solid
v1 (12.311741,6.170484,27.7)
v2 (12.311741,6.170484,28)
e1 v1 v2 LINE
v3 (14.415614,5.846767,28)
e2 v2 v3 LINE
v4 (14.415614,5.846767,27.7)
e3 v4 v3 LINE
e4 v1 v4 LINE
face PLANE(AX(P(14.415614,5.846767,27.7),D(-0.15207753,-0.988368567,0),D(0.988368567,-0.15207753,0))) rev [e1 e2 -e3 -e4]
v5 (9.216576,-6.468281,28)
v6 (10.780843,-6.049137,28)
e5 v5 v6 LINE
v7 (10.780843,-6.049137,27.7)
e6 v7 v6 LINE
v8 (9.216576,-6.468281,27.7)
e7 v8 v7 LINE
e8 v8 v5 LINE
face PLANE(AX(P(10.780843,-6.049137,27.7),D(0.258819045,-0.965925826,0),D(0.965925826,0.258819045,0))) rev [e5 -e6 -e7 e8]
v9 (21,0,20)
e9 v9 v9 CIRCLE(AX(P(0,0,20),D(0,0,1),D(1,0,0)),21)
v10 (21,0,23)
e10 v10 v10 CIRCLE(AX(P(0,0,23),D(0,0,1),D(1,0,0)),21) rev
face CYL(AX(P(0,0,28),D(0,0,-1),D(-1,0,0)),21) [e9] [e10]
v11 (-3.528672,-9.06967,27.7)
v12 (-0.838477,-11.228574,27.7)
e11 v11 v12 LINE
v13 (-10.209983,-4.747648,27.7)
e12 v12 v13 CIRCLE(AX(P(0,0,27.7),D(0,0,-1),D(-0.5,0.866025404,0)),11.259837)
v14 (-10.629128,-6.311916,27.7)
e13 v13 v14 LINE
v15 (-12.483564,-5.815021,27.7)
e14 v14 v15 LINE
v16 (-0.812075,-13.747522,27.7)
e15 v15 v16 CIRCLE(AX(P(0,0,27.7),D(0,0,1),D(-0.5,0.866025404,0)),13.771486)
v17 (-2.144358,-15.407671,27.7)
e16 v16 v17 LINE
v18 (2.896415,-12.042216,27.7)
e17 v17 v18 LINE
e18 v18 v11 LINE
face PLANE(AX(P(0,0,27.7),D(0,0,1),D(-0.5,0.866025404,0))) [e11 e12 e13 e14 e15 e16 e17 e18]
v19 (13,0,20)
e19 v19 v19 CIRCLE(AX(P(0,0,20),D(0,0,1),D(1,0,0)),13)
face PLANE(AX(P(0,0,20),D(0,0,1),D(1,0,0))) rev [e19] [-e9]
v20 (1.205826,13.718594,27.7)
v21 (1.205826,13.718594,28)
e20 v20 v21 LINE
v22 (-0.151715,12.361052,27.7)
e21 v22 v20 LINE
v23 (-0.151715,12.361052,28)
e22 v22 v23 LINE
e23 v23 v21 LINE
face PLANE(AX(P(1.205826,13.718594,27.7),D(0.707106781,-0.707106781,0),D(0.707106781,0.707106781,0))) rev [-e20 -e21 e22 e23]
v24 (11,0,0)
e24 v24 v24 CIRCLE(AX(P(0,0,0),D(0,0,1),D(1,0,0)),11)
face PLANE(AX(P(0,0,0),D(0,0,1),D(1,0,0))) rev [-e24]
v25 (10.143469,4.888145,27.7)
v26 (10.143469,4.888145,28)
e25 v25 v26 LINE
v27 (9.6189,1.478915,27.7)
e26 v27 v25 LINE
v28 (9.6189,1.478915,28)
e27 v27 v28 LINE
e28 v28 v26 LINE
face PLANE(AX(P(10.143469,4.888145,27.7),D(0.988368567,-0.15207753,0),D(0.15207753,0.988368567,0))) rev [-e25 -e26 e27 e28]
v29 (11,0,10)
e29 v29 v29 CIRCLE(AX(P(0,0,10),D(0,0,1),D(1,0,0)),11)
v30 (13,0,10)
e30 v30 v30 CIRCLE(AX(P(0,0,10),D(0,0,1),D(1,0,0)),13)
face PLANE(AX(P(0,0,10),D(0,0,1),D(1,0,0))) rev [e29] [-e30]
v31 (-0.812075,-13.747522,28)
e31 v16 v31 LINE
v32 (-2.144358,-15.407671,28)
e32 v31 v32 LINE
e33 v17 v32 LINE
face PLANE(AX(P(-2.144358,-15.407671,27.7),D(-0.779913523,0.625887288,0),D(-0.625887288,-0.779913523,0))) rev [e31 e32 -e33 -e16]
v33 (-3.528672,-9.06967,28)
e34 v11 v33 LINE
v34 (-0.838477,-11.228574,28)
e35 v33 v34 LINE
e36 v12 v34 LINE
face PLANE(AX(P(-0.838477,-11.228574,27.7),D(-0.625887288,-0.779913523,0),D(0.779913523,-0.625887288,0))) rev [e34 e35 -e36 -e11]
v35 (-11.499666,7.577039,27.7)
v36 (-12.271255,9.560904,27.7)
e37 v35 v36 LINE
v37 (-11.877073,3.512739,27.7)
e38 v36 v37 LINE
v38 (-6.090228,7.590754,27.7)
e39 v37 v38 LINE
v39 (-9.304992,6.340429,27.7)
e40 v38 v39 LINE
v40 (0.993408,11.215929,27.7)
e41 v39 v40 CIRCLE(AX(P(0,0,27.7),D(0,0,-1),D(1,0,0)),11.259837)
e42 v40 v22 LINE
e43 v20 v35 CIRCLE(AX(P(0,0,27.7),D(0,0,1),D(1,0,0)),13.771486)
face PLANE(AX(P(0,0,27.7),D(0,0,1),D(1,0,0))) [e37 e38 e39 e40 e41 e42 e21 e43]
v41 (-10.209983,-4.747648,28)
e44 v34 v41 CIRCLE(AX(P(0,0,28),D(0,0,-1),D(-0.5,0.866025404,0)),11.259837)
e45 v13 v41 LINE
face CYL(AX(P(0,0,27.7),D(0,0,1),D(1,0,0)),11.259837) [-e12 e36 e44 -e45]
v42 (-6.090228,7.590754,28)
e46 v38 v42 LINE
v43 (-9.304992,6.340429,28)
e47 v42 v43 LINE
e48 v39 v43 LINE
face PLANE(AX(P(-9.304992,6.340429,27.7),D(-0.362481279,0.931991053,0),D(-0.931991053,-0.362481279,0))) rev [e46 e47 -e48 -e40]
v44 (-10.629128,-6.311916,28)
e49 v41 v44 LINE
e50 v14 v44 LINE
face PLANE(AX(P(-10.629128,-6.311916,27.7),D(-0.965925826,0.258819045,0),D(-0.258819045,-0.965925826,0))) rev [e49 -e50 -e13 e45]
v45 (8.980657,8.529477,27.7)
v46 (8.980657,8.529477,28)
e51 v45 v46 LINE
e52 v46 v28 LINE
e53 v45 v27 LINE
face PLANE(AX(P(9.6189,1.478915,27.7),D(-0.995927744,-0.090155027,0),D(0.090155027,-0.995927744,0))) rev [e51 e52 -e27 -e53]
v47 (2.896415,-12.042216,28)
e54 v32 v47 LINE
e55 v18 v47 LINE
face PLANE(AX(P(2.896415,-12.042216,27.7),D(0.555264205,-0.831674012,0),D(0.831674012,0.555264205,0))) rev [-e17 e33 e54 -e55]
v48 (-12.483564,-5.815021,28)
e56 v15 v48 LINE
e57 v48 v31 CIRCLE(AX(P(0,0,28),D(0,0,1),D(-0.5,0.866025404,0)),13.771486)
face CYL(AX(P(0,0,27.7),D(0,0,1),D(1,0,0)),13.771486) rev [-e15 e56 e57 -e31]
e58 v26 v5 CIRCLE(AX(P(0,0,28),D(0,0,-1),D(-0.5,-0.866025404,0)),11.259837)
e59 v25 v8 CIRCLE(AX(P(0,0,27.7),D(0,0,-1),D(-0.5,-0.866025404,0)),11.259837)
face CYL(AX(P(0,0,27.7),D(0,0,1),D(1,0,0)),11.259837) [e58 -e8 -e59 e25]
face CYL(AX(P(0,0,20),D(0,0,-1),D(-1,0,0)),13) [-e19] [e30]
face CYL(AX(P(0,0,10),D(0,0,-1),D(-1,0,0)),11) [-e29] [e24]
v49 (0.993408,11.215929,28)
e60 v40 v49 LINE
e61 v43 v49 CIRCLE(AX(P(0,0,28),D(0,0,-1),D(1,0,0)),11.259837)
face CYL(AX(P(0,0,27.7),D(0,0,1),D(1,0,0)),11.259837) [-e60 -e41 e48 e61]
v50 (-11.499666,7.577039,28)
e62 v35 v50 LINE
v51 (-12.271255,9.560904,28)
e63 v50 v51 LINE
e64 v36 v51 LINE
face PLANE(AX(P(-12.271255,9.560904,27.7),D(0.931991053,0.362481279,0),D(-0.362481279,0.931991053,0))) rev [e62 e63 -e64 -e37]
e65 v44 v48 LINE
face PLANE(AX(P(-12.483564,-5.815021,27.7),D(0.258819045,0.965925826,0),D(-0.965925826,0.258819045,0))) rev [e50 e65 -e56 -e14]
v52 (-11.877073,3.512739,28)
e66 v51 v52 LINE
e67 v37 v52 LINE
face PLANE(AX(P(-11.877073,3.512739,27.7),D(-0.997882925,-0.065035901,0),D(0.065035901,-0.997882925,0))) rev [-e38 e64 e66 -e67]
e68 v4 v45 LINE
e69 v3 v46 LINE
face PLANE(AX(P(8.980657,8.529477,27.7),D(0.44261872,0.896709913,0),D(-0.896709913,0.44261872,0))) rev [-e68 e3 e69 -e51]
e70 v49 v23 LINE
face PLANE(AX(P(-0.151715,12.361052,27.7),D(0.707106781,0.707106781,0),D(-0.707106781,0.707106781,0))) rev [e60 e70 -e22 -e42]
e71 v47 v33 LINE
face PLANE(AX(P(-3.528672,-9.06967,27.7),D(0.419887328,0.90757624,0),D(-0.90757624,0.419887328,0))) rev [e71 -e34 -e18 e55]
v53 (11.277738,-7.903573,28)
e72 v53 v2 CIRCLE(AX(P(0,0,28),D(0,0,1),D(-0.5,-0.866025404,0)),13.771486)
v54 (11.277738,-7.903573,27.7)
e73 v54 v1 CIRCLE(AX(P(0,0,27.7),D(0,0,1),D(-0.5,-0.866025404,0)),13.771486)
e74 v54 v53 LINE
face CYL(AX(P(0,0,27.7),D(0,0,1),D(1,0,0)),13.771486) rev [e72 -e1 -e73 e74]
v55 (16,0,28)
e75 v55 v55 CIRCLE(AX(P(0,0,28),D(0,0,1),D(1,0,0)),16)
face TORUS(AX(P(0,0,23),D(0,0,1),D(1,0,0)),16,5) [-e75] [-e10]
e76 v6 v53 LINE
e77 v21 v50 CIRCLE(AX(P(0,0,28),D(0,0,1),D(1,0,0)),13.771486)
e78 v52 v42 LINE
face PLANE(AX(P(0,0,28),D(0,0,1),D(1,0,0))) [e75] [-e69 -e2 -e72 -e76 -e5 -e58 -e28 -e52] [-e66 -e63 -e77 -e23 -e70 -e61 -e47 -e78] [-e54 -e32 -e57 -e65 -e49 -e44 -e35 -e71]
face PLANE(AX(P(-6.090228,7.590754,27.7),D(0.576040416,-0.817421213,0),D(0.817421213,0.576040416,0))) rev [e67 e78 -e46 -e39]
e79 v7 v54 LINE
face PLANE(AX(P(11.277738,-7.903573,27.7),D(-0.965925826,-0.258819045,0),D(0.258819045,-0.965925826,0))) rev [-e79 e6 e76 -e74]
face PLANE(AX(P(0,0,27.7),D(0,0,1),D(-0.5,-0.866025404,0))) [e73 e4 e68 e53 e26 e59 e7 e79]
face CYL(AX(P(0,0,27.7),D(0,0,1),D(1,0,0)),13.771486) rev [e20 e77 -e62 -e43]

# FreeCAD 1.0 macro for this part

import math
import FreeCAD as App
import Part
import Sketcher

V = App.Vector
Q = App.Units.Quantity


def edges_at(feature, points):
    """Names of the edges that pass closest to the given points."""
    edges = feature.Shape.Edges
    near = lambda p: min(range(len(edges)), key=lambda i: edges[i].distToShape(Part.Vertex(*p))[0])
    return sorted({f"Edge{near(p) + 1}" for p in points})

doc = App.newDocument("Part")
body = doc.addObject("PartDesign::Body", "Body")

sketch1 = body.newObject("Sketcher::SketchObject", "Sketch")
sketch1.AttachmentSupport = (doc.getObject("XY_Plane"), [""])
sketch1.MapMode = "FlatFace"
sketch1.addGeometry(Part.Circle(V(0, 0, 0), V(0, 0, 1), 11), False)
sketch1.addConstraint([
    Sketcher.Constraint("Coincident", 0, 3, -1, 1),
    Sketcher.Constraint("Diameter", 0, 22.0),
])
pad1 = body.newObject("PartDesign::Pad", "Pad")
pad1.Profile = sketch1
pad1.Length = 10

sketch2 = body.newObject("Sketcher::SketchObject", "Sketch001")
sketch2.AttachmentSupport = (doc.getObject("XY_Plane"), [""])
sketch2.MapMode = "FlatFace"
sketch2.AttachmentOffset = App.Placement(V(0, 0, 10), App.Rotation())
sketch2.addGeometry(Part.Circle(V(0, 0, 0), V(0, 0, 1), 13), False)
sketch2.addConstraint([
    Sketcher.Constraint("Coincident", 0, 3, -1, 1),
    Sketcher.Constraint("Diameter", 0, 26.0),
])
pad2 = body.newObject("PartDesign::Pad", "Pad001")
pad2.Profile = sketch2
pad2.Length = 10

sketch3 = body.newObject("Sketcher::SketchObject", "Sketch002")
sketch3.AttachmentSupport = (doc.getObject("XY_Plane"), [""])
sketch3.MapMode = "FlatFace"
sketch3.AttachmentOffset = App.Placement(V(0, 0, 20), App.Rotation())
sketch3.addGeometry(Part.Circle(V(0, 0, 0), V(0, 0, 1), 21), False)
sketch3.addConstraint([
    Sketcher.Constraint("Coincident", 0, 3, -1, 1),
    Sketcher.Constraint("Diameter", 0, 42.0),
])
pad3 = body.newObject("PartDesign::Pad", "Pad002")
pad3.Profile = sketch3
pad3.Length = 8
doc.recompute()

fillet = body.newObject("PartDesign::Fillet", "Fillet")
fillet.Base = (pad3, edges_at(pad3, [(-21, 0, 28)]))
fillet.Radius = 5

sketch4 = body.newObject("Sketcher::SketchObject", "Sketch003")
sketch4.AttachmentSupport = (doc.getObject("XY_Plane"), [""])
sketch4.MapMode = "FlatFace"
sketch4.AttachmentOffset = App.Placement(V(0, 0, 28), App.Rotation())
sketch4.addGeometry([
    Part.LineSegment(V(-6.1, 7.6, 0), V(-9.3, 6.3, 0)),
    Part.ArcOfCircle(Part.Circle(V(0, 0, 0), V(0, 0, 1), 11.3), math.radians(85), math.radians(146)),
    Part.LineSegment(V(1, 11.2, 0), V(-0.2, 12.4, 0)),
    Part.LineSegment(V(-0.2, 12.4, 0), V(1.2, 13.7, 0)),
    Part.ArcOfCircle(Part.Circle(V(0, 0, 0), V(0, 0, 1), 13.8), math.radians(85), math.radians(147)),
    Part.LineSegment(V(-11.5, 7.6, 0), V(-12.3, 9.6, 0)),
    Part.LineSegment(V(-12.3, 9.6, 0), V(-11.9, 3.5, 0)),
    Part.LineSegment(V(-11.9, 3.5, 0), V(-6.1, 7.6, 0)),
], False)
sketch4.addConstraint([
    Sketcher.Constraint("Coincident", 0, 2, 1, 2),
    Sketcher.Constraint("Coincident", 1, 1, 2, 1),
    Sketcher.Constraint("Coincident", 2, 2, 3, 1),
    Sketcher.Constraint("Coincident", 3, 2, 4, 1),
    Sketcher.Constraint("Coincident", 4, 2, 5, 1),
    Sketcher.Constraint("Coincident", 5, 2, 6, 1),
    Sketcher.Constraint("Coincident", 6, 2, 7, 1),
    Sketcher.Constraint("Coincident", 7, 2, 0, 1),
    Sketcher.Constraint("Coincident", 1, 3, -1, 1),
    Sketcher.Constraint("Coincident", 4, 3, -1, 1),
    Sketcher.Constraint("Perpendicular", 2, 3),
    Sketcher.Constraint("Perpendicular", 0, 5),
    Sketcher.Constraint("Angle", 2, Q("135 deg")),
    Sketcher.Constraint("Radius", 1, 11.259837),
    Sketcher.Constraint("Radius", 4, 13.771486),
    Sketcher.Constraint("DistanceX", 0, 2, 1, 1, 10.2984),
    Sketcher.Constraint("DistanceY", 0, 2, 1, 1, 4.8755),
    Sketcher.Constraint("DistanceY", 6, 2, 4, 2, 4.0643),
    Sketcher.Constraint("DistanceY", 7, 2, 2, 2, 4.770298),
    Sketcher.Constraint("Distance", 0, 3.449351),
    Sketcher.Constraint("Distance", 2, 1.619449),
    Sketcher.Constraint("Distance", 5, 2.128632),
    Sketcher.Constraint("Distance", 7, 7.079391),
    Sketcher.Constraint("DistanceY", -1, 1, 4, 2, 7.577039),
])
pocket1 = body.newObject("PartDesign::Pocket", "Pocket")
pocket1.Profile = sketch4
pocket1.Length = 0.3
doc.recompute()

polarpattern = body.newObject("PartDesign::PolarPattern", "PolarPattern")
polarpattern.Originals = [pocket1]
polarpattern.Axis = (doc.getObject("Z_Axis"), [""])
polarpattern.Angle = 360
polarpattern.Occurrences = 3
body.Tip = polarpattern

doc.recompute()
